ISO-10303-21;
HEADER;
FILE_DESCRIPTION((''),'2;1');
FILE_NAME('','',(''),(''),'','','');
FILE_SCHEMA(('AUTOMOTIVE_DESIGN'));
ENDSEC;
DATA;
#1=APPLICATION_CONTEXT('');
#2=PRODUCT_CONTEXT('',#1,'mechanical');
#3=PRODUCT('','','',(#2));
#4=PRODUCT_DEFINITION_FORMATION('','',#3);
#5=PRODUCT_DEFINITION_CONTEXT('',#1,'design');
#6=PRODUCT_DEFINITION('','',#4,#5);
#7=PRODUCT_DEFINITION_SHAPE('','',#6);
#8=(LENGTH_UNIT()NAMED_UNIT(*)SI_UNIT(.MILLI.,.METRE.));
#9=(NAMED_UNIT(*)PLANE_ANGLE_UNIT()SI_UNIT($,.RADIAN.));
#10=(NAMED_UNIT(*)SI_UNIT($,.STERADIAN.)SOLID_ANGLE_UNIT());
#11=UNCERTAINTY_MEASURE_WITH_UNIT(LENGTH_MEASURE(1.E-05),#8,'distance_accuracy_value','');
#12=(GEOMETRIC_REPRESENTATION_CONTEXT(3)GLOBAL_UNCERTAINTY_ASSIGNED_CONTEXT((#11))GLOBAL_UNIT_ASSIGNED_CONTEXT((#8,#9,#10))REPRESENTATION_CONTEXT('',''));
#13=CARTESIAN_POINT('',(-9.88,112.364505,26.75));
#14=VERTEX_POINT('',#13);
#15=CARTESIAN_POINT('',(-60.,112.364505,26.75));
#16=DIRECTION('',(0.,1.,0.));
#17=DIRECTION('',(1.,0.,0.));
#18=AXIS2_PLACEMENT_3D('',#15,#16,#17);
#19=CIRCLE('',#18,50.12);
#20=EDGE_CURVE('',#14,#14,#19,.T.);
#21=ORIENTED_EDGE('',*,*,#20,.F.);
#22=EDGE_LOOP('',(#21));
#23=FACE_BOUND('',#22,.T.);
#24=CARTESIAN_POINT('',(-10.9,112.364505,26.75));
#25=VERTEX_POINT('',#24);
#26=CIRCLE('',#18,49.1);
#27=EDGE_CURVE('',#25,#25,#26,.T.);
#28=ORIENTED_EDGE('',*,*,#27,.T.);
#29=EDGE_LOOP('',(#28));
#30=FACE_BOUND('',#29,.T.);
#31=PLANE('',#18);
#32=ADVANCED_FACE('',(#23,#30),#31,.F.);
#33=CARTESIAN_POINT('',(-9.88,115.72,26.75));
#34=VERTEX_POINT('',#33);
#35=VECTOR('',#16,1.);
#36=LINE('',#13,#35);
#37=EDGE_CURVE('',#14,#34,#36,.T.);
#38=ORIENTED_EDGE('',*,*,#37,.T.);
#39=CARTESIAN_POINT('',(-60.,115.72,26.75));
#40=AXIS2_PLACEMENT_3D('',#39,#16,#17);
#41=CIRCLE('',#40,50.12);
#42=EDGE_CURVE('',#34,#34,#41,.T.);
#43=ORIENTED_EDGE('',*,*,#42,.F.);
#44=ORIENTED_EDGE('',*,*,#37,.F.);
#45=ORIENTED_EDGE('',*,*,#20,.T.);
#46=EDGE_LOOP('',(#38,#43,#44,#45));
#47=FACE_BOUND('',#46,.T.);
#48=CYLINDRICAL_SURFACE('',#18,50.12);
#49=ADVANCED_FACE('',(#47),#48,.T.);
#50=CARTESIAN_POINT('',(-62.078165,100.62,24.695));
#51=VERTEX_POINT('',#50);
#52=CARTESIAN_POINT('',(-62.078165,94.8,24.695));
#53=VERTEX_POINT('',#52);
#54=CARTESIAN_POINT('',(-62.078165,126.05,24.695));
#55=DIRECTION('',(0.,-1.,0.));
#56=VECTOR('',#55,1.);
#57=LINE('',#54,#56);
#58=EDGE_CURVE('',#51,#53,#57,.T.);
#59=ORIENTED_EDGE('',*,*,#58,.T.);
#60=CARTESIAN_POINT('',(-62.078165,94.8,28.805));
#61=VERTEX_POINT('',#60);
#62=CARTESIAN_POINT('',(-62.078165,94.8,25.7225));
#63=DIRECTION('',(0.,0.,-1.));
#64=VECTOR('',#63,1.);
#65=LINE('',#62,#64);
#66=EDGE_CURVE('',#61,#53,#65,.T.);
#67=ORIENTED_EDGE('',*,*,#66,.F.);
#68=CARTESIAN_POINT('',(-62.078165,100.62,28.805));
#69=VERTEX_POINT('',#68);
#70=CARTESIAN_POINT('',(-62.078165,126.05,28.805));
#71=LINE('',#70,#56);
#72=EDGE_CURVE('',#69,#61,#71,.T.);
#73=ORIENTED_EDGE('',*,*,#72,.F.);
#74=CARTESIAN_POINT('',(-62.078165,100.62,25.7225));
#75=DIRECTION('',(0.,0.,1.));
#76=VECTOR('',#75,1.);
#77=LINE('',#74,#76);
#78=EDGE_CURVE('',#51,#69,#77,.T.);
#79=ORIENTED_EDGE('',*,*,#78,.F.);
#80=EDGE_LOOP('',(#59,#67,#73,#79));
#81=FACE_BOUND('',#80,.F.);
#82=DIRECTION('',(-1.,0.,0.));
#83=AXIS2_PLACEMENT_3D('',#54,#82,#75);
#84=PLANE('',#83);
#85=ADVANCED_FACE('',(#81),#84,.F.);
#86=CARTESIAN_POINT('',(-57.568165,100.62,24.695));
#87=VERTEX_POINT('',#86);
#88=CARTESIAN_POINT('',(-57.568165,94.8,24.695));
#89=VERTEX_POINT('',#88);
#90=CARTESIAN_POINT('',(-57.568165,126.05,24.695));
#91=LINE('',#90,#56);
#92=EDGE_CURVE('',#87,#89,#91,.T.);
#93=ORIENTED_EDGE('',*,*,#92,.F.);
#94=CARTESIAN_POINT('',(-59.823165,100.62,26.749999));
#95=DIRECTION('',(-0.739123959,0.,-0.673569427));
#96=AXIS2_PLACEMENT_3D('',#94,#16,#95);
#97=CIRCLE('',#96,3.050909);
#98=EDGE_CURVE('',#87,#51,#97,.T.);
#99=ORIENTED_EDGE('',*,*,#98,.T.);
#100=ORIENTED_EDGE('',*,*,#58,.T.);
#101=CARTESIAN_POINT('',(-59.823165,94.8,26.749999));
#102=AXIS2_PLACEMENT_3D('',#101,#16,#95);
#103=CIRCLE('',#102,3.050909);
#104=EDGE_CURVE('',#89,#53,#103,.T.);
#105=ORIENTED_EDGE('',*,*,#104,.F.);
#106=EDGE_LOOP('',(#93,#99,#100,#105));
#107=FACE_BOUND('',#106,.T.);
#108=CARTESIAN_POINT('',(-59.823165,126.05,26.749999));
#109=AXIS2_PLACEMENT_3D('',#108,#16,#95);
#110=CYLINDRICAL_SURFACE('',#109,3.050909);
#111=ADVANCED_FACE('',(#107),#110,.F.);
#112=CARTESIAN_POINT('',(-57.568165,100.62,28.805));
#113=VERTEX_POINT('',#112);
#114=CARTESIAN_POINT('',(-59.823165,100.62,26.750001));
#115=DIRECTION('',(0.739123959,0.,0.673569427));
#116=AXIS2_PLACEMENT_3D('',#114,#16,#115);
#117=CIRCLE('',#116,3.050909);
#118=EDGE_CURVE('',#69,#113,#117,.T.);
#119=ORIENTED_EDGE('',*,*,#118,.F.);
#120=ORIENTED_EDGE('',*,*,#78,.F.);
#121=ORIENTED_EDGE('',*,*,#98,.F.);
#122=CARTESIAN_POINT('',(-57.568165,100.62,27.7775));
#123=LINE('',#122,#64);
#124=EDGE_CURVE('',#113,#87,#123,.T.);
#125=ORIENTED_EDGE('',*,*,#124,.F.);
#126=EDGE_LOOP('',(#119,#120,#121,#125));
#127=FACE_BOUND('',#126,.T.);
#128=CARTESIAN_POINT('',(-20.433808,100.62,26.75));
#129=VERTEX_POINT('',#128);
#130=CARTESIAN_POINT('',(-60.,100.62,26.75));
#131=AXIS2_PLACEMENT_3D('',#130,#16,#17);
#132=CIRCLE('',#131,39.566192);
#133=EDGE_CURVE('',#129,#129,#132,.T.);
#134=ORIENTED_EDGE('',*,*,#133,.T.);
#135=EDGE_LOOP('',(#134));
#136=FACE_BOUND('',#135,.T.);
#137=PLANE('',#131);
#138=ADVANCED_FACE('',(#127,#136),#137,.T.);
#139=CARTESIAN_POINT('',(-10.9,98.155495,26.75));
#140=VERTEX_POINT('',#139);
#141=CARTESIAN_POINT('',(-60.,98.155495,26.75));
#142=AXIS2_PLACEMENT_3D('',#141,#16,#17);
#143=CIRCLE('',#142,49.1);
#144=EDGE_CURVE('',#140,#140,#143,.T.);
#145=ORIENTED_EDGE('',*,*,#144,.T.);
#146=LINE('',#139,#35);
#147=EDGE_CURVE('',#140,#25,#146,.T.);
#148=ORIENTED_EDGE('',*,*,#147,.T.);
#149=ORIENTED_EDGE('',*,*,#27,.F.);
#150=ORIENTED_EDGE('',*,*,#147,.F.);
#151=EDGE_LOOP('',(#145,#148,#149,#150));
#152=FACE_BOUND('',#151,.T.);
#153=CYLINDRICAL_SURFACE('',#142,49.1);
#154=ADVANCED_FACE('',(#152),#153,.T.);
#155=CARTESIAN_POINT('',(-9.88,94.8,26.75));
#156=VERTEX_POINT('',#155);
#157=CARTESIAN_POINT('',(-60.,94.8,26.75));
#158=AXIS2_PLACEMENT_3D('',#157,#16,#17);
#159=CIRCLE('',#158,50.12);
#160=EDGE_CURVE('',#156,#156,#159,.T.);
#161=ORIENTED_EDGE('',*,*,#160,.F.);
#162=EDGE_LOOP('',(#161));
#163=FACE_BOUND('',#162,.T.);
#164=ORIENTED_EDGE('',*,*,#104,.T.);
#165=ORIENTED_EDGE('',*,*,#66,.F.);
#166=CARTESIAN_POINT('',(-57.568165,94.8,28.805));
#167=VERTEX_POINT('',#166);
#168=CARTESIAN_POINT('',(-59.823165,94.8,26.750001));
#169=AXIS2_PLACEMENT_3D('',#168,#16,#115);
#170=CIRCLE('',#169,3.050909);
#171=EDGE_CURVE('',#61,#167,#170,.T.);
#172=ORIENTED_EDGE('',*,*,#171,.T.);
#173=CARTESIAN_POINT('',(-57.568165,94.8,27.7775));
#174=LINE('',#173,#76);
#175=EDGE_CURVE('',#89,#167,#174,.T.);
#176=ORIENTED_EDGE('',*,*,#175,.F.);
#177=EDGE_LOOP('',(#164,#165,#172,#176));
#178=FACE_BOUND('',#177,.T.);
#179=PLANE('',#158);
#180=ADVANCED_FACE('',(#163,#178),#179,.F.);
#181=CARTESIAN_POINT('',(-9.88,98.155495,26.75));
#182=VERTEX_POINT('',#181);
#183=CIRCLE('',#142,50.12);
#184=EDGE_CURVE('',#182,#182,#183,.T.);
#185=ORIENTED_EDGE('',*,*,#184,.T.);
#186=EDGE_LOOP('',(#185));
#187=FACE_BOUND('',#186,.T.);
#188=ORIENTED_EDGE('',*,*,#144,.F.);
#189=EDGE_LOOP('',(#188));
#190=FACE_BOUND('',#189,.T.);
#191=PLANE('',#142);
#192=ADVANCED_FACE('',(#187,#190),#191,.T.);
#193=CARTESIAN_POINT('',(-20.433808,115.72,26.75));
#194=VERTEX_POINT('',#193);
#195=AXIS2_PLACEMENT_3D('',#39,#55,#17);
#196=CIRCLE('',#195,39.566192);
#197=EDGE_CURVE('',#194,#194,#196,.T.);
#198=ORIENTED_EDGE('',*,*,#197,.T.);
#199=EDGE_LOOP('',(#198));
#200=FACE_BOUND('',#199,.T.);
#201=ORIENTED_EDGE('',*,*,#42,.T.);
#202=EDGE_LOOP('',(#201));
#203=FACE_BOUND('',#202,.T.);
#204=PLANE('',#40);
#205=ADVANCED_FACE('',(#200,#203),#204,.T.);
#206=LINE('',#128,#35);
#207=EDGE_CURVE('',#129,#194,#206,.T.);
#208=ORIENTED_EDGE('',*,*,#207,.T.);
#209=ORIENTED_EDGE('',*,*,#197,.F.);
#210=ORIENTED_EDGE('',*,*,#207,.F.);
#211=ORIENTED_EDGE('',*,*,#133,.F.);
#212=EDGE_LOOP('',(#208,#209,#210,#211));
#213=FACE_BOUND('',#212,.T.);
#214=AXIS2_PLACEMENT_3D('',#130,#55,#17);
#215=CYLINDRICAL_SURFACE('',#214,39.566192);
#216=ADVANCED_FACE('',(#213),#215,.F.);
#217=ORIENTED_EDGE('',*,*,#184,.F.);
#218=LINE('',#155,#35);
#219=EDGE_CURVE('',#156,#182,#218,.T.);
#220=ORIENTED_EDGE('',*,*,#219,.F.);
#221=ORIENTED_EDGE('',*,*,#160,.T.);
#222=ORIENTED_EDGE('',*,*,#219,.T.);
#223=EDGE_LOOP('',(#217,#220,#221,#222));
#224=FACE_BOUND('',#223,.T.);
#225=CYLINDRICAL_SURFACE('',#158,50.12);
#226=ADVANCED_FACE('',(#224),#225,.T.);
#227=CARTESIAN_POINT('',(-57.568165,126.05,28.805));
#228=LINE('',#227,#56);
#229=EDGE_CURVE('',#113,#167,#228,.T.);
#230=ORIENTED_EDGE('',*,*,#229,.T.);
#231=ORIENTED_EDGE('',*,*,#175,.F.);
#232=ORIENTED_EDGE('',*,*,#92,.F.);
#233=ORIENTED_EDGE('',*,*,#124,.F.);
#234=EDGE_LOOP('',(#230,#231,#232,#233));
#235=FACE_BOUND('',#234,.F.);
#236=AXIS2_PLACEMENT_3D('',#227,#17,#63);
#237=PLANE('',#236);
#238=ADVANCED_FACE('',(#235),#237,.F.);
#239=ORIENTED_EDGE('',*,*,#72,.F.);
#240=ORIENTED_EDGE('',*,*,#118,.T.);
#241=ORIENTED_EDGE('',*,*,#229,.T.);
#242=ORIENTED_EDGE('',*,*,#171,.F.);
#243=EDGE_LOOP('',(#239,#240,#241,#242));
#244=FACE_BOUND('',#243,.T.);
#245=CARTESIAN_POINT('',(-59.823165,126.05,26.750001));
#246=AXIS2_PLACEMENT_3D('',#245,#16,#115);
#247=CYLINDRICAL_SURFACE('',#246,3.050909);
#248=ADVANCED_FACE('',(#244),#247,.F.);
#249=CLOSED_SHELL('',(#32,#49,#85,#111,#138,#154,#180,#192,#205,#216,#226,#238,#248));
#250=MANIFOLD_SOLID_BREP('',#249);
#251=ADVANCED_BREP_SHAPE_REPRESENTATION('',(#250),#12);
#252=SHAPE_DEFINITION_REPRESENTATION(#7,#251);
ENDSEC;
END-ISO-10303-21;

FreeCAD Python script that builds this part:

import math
import FreeCAD as App
import Part
import Sketcher

V = App.Vector

doc = App.newDocument("Part")
params = doc.addObject("Spreadsheet::Sheet", "Params")
for row, (alias, value) in enumerate([
    ("sketch1_width", "4.11 mm"),
    ("pad1_length", "40 mm"),
    ("pad2_length", "20 mm"),
    ("sketch3_width", "50.12 mm"),
    ("sketch3_width2", "1.02 mm"),
    ("sketch3_height", "20.92 mm"),
    ("revolution_angle", "360 deg"),
], start=1):
    params.set(f"A{row}", alias)
    params.set(f"B{row}", "=" + value)
    params.setAlias(f"B{row}", alias)

body = doc.addObject("PartDesign::Body", "Body")

# Sketch on XZ plane
sketch1 = body.newObject("Sketcher::SketchObject", "Sketch")
sketch1.AttachmentSupport = (doc.getObject("XZ_Plane"), [""])
sketch1.MapMode = "FlatFace"
sketch1.AttachmentOffset = App.Placement(V(0, 0, 17.4), App.Rotation())
sketch1.addGeometry(Part.LineSegment(V(-2.1, 2.1, 0), V(2.1, 2.1, 0)), False)
sketch1.addGeometry(Part.ArcOfCircle(Part.Circle(V(0, -0.2, 0), V(0, 0, 1), 3.1), math.radians(-48), math.radians(48)), False)
sketch1.addGeometry(Part.LineSegment(V(2.1, -2.4, 0), V(-2.1, -2.4, 0)), False)
sketch1.addGeometry(Part.ArcOfCircle(Part.Circle(V(0, -0.2, 0), V(0, 0, 1), 3.1), math.radians(132), math.radians(228)), False)
sketch1.addConstraint(Sketcher.Constraint("Coincident", 0, 2, 1, 2))
sketch1.addConstraint(Sketcher.Constraint("Coincident", 1, 1, 2, 1))
sketch1.addConstraint(Sketcher.Constraint("Coincident", 2, 2, 3, 2))
sketch1.addConstraint(Sketcher.Constraint("Coincident", 3, 1, 0, 1))
sketch1.addConstraint(Sketcher.Constraint("Horizontal", 0))
sketch1.addConstraint(Sketcher.Constraint("Horizontal", 2))
sketch1.addConstraint(Sketcher.Constraint("Coincident", 3, 3, 1, 3))
sketch1.addConstraint(Sketcher.Constraint("Equal", 1, 3))
sketch1.addConstraint(Sketcher.Constraint("PointOnObject", 1, 3, -2))
sketch1.addConstraint(Sketcher.Constraint("Vertical", 0, 2, 1, 1))
sketch1.addConstraint(Sketcher.Constraint("DistanceX", 0, 1, 0, 2, 4.11))
sketch1.addConstraint(Sketcher.Constraint("Radius", 1, 3.050909))
sketch1.addConstraint(Sketcher.Constraint("DistanceY", 1, 3, -1, 1, 0.176835))
sketch1.setExpression("Constraints[10]", "Params.sketch1_width")
pad1 = body.newObject("PartDesign::Pad", "Pad")
pad1.Profile = sketch1
pad1.setExpression("Length", "Params.pad1_length")
pad1.Reversed = True
body2 = doc.addObject("PartDesign::Body", "Body001")
doc.recompute()

body.Placement = App.Placement(V(0, 0, 0), App.Rotation(V(1, 0, 0), 270))
boolean = body2.newObject("PartDesign::Boolean", "Boolean")
boolean.Type = "Fuse"
boolean.addObjects([body])
body3 = doc.addObject("PartDesign::Body", "Body002")
doc.recompute()

body2.Placement = App.Placement(V(0, 0, 13.85), App.Rotation(V(0, 0, 1), 90))
boolean2 = body3.newObject("PartDesign::Boolean", "Boolean001")
boolean2.Type = "Fuse"
boolean2.addObjects([body2])
body4 = doc.addObject("PartDesign::Body", "Body003")

# Sketch on XY plane
sketch2 = body4.newObject("Sketcher::SketchObject", "Sketch001")
sketch2.AttachmentSupport = (doc.getObject("XY_Plane003"), [""])
sketch2.MapMode = "FlatFace"
sketch2.AttachmentOffset = App.Placement(V(0, 0, 20.92), App.Rotation())
sketch2.addGeometry(Part.Circle(V(0, 0, 0), V(0, 0, 1), 40), False)
sketch2.addConstraint(Sketcher.Constraint("Coincident", 0, 3, -1, 1))
sketch2.addConstraint(Sketcher.Constraint("Diameter", 0, 79.132384))
pad2 = body4.newObject("PartDesign::Pad", "Pad001")
pad2.Profile = sketch2
pad2.setExpression("Length", "Params.pad2_length")
body5 = doc.addObject("PartDesign::Body", "Body004")
doc.recompute()

body4.Placement = App.Placement(V(0, 0, -15.1), App.Rotation(V(0, 0, 1), 0))
boolean3 = body5.newObject("PartDesign::Boolean", "Boolean002")
boolean3.Type = "Fuse"
boolean3.addObjects([body4])
body6 = doc.addObject("PartDesign::Body", "Body005")

# Sketch on XZ plane
sketch3 = body6.newObject("Sketcher::SketchObject", "Sketch002")
sketch3.AttachmentSupport = (doc.getObject("XZ_Plane005"), [""])
sketch3.MapMode = "FlatFace"
sketch3.addGeometry(Part.LineSegment(V(0, 0, 0), V(50.1, 0, 0)), False)
sketch3.addGeometry(Part.LineSegment(V(50.1, 0, 0), V(50.1, 3.4, 0)), False)
sketch3.addGeometry(Part.LineSegment(V(50.1, 3.4, 0), V(49.1, 3.4, 0)), False)
sketch3.addGeometry(Part.LineSegment(V(49.1, 3.4, 0), V(49.1, 17.6, 0)), False)
sketch3.addGeometry(Part.LineSegment(V(49.1, 17.6, 0), V(50.1, 17.6, 0)), False)
sketch3.addGeometry(Part.LineSegment(V(50.1, 17.6, 0), V(50.1, 20.9, 0)), False)
sketch3.addGeometry(Part.LineSegment(V(50.1, 20.9, 0), V(0, 20.9, 0)), False)
sketch3.addGeometry(Part.LineSegment(V(0, 20.9, 0), V(0, 0, 0)), False)
sketch3.addConstraint(Sketcher.Constraint("Coincident", 0, 2, 1, 1))
sketch3.addConstraint(Sketcher.Constraint("Coincident", 1, 2, 2, 1))
sketch3.addConstraint(Sketcher.Constraint("Coincident", 2, 2, 3, 1))
sketch3.addConstraint(Sketcher.Constraint("Coincident", 3, 2, 4, 1))
sketch3.addConstraint(Sketcher.Constraint("Coincident", 4, 2, 5, 1))
sketch3.addConstraint(Sketcher.Constraint("Coincident", 5, 2, 6, 1))
sketch3.addConstraint(Sketcher.Constraint("Coincident", 6, 2, 7, 1))
sketch3.addConstraint(Sketcher.Constraint("Coincident", 7, 2, 0, 1))
sketch3.addConstraint(Sketcher.Constraint("Horizontal", 0))
sketch3.addConstraint(Sketcher.Constraint("Vertical", 1))
sketch3.addConstraint(Sketcher.Constraint("Horizontal", 2))
sketch3.addConstraint(Sketcher.Constraint("Vertical", 3))
sketch3.addConstraint(Sketcher.Constraint("Horizontal", 4))
sketch3.addConstraint(Sketcher.Constraint("Vertical", 5))
sketch3.addConstraint(Sketcher.Constraint("Horizontal", 6))
sketch3.addConstraint(Sketcher.Constraint("Vertical", 7))
sketch3.addConstraint(Sketcher.Constraint("Coincident", 7, 2, -1, 1))
sketch3.addConstraint(Sketcher.Constraint("Vertical", 1, 2, 4, 2))
sketch3.addConstraint(Sketcher.Constraint("Equal", 1, 5))
sketch3.addConstraint(Sketcher.Constraint("DistanceX", 0, 1, 0, 2, 50.12))
sketch3.addConstraint(Sketcher.Constraint("DistanceX", 2, 2, 2, 1, 1.02))
sketch3.addConstraint(Sketcher.Constraint("DistanceY", 7, 2, 7, 1, 20.92))
sketch3.addConstraint(Sketcher.Constraint("DistanceY", 3, 1, 3, 2, 14.20901))
sketch3.setExpression("Constraints[19]", "Params.sketch3_width")
sketch3.setExpression("Constraints[20]", "Params.sketch3_width2")
sketch3.setExpression("Constraints[21]", "Params.sketch3_height")
revolution = body6.newObject("PartDesign::Revolution", "Revolution")
revolution.Profile = sketch3
revolution.ReferenceAxis = (sketch3, ["V_Axis"])
revolution.setExpression("Angle", "Params.revolution_angle")
doc.recompute()

boolean4 = body6.newObject("PartDesign::Boolean", "Boolean003")
boolean4.Type = "Cut"
boolean4.addObjects([body5])
doc.recompute()

boolean5 = body6.newObject("PartDesign::Boolean", "Boolean004")
boolean5.Type = "Cut"
boolean5.addObjects([body3])
body7 = doc.addObject("PartDesign::Body", "Body006")
doc.recompute()

body6.Placement = App.Placement(V(-60, 94.8, 26.75), App.Rotation(V(1, 0, 0), 270))
boolean6 = body7.newObject("PartDesign::Boolean", "Boolean005")
boolean6.Type = "Fuse"
boolean6.addObjects([body6])

doc.recompute()
